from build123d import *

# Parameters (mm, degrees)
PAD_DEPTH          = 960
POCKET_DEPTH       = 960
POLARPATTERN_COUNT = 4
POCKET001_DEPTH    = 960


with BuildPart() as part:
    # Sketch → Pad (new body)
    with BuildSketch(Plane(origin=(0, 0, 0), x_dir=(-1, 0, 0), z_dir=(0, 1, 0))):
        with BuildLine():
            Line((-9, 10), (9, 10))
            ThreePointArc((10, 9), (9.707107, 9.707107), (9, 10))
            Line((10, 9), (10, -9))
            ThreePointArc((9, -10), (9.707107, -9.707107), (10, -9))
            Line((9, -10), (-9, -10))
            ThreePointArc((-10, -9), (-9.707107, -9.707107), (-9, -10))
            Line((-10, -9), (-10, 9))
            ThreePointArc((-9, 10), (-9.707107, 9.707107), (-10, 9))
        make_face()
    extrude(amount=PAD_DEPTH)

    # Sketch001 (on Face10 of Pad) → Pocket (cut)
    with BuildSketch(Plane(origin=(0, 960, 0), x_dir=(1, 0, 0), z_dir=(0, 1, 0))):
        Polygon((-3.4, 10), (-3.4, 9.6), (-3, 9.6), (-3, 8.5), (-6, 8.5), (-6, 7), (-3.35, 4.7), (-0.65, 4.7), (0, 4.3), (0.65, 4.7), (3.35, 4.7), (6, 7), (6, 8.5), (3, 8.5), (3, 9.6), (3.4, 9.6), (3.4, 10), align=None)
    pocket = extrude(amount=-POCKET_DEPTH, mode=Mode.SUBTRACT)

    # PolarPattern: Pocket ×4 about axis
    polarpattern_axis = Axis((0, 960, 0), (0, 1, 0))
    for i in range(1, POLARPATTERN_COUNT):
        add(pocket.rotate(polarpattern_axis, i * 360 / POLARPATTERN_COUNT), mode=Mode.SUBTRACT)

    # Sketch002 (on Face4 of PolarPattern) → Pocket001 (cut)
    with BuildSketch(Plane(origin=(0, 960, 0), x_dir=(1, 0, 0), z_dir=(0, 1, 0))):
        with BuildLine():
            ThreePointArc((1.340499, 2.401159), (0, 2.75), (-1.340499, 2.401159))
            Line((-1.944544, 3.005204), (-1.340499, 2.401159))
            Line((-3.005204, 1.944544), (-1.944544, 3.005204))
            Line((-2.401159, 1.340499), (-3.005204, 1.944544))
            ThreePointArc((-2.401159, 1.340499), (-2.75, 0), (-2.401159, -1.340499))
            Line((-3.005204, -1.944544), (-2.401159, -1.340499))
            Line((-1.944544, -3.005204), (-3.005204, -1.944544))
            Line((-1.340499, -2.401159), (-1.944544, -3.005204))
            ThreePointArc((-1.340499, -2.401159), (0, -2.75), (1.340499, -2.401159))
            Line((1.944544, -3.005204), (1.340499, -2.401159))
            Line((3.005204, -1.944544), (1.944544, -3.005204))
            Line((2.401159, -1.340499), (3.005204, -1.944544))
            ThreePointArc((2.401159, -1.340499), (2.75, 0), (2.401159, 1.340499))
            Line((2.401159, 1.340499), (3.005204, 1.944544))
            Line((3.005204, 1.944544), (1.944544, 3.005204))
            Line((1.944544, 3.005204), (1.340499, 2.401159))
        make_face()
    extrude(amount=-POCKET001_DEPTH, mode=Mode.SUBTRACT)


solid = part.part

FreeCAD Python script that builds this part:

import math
import FreeCAD as App
import Part
import Sketcher

V = App.Vector

doc = App.newDocument("Part")
params = doc.addObject("Spreadsheet::Sheet", "Params")
for row, (alias, value) in enumerate([
    ("sketch1_radius", "0.999999 mm"),
    ("sketch1_width", "18 mm"),
    ("pad1_length", "960 mm"),
    ("sketch2_width", "3 mm"),
    ("sketch2_width2", "0.4 mm"),
    ("sketch2_width3", "2.7 mm"),
    ("sketch2_width4", "6.8 mm"),
    ("sketch2_height", "1.1 mm"),
    ("pocket1_length", "960 mm"),
    ("sketch3_length", "1.5 mm"),
    ("pocket2_length", "960 mm"),
], start=1):
    params.set(f"A{row}", alias)
    params.set(f"B{row}", "=" + value)
    params.setAlias(f"B{row}", alias)

body = doc.addObject("PartDesign::Body", "Body")

# Sketch on XZ plane
sketch1 = body.newObject("Sketcher::SketchObject", "Sketch")
sketch1.AttachmentSupport = (doc.getObject("XZ_Plane"), [""])
sketch1.MapMode = "FlatFace"
sketch1.addGeometry([
    Part.LineSegment(V(-9, 10, 0), V(9, 10, 0)),  # 0
    Part.ArcOfCircle(Part.Circle(V(9, 9, 0), V(0, 0, 1), 1), math.radians(0), math.radians(90)),  # 1
    Part.LineSegment(V(10, 9, 0), V(10, -9, 0)),  # 2
    Part.ArcOfCircle(Part.Circle(V(9, -9, 0), V(0, 0, 1), 1), math.radians(-90), math.radians(0)),  # 3
    Part.LineSegment(V(9, -10, 0), V(-9, -10, 0)),  # 4
    Part.ArcOfCircle(Part.Circle(V(-9, -9, 0), V(0, 0, 1), 1), math.radians(180), math.radians(270)),  # 5
    Part.LineSegment(V(-10, -9, 0), V(-10, 9, 0)),  # 6
    Part.ArcOfCircle(Part.Circle(V(-9, 9, 0), V(0, 0, 1), 1), math.radians(90), math.radians(180)),  # 7
], False)
sketch1.addConstraint([
    Sketcher.Constraint("Tangent", 0, 2, 1, 2),
    Sketcher.Constraint("Tangent", 1, 1, 2, 1),
    Sketcher.Constraint("Tangent", 2, 2, 3, 2),
    Sketcher.Constraint("Tangent", 3, 1, 4, 1),
    Sketcher.Constraint("Tangent", 4, 2, 5, 2),
    Sketcher.Constraint("Tangent", 5, 1, 6, 1),
    Sketcher.Constraint("Tangent", 6, 2, 7, 2),
    Sketcher.Constraint("Tangent", 7, 1, 0, 1),
    Sketcher.Constraint("Horizontal", 0),
    Sketcher.Constraint("Vertical", 2),
    Sketcher.Constraint("Horizontal", 4),
    Sketcher.Constraint("Vertical", 6),
    Sketcher.Constraint("Equal", 1, 3),
    Sketcher.Constraint("Equal", 3, 5),
    Sketcher.Constraint("Equal", 5, 7),
    Sketcher.Constraint("Symmetric", 1, 3, 5, 3, -1, 1),
    Sketcher.Constraint("Equal", 4, 2),
    Sketcher.Constraint("Radius", 1, 0.999999),
    Sketcher.Constraint("DistanceX", 0, 1, 0, 2, 18.0),
])
sketch1.setExpression("Constraints[17]", "Params.sketch1_radius")
sketch1.setExpression("Constraints[18]", "Params.sketch1_width")
pad1 = body.newObject("PartDesign::Pad", "Pad")
pad1.Profile = sketch1
pad1.setExpression("Length", "Params.pad1_length")
pad1.Reversed = True

# Sketch on XZ plane
sketch2 = body.newObject("Sketcher::SketchObject", "Sketch001")
sketch2.AttachmentSupport = (doc.getObject("XZ_Plane"), [""])
sketch2.MapMode = "FlatFace"
sketch2.AttachmentOffset = App.Placement(V(0, 0, -960), App.Rotation())
sketch2.addGeometry([
    Part.LineSegment(V(-3.4, -10, 0), V(-3.4, -9.6, 0)),  # 0
    Part.LineSegment(V(-3.4, -9.6, 0), V(-3, -9.6, 0)),  # 1
    Part.LineSegment(V(-3, -9.6, 0), V(-3, -8.5, 0)),  # 2
    Part.LineSegment(V(-3, -8.5, 0), V(-6, -8.5, 0)),  # 3
    Part.LineSegment(V(-6, -8.5, 0), V(-6, -7, 0)),  # 4
    Part.LineSegment(V(-6, -7, 0), V(-3.35, -4.7, 0)),  # 5
    Part.LineSegment(V(-3.35, -4.7, 0), V(-0.65, -4.7, 0)),  # 6
    Part.LineSegment(V(-0.65, -4.7, 0), V(0, -4.3, 0)),  # 7
    Part.LineSegment(V(0, -4.3, 0), V(0.65, -4.7, 0)),  # 8
    Part.LineSegment(V(0.65, -4.7, 0), V(3.35, -4.7, 0)),  # 9
    Part.LineSegment(V(3.35, -4.7, 0), V(6, -7, 0)),  # 10
    Part.LineSegment(V(6, -7, 0), V(6, -8.5, 0)),  # 11
    Part.LineSegment(V(6, -8.5, 0), V(3, -8.5, 0)),  # 12
    Part.LineSegment(V(3, -8.5, 0), V(3, -9.6, 0)),  # 13
    Part.LineSegment(V(3, -9.6, 0), V(3.4, -9.6, 0)),  # 14
    Part.LineSegment(V(3.4, -9.6, 0), V(3.4, -10, 0)),  # 15
    Part.LineSegment(V(3.4, -10, 0), V(-3.4, -10, 0)),  # 16
], False)
sketch2.addConstraint([
    Sketcher.Constraint("Coincident", 0, 2, 1, 1),
    Sketcher.Constraint("Coincident", 1, 2, 2, 1),
    Sketcher.Constraint("Coincident", 2, 2, 3, 1),
    Sketcher.Constraint("Coincident", 3, 2, 4, 1),
    Sketcher.Constraint("Coincident", 4, 2, 5, 1),
    Sketcher.Constraint("Coincident", 5, 2, 6, 1),
    Sketcher.Constraint("Coincident", 6, 2, 7, 1),
    Sketcher.Constraint("Coincident", 7, 2, 8, 1),
    Sketcher.Constraint("Coincident", 8, 2, 9, 1),
    Sketcher.Constraint("Coincident", 9, 2, 10, 1),
    Sketcher.Constraint("Coincident", 10, 2, 11, 1),
    Sketcher.Constraint("Coincident", 11, 2, 12, 1),
    Sketcher.Constraint("Coincident", 12, 2, 13, 1),
    Sketcher.Constraint("Coincident", 13, 2, 14, 1),
    Sketcher.Constraint("Coincident", 14, 2, 15, 1),
    Sketcher.Constraint("Coincident", 15, 2, 16, 1),
    Sketcher.Constraint("Coincident", 16, 2, 0, 1),
    Sketcher.Constraint("Vertical", 0),
    Sketcher.Constraint("Horizontal", 1),
    Sketcher.Constraint("Vertical", 2),
    Sketcher.Constraint("Horizontal", 3),
    Sketcher.Constraint("Vertical", 4),
    Sketcher.Constraint("Horizontal", 6),
    Sketcher.Constraint("Horizontal", 9),
    Sketcher.Constraint("Vertical", 11),
    Sketcher.Constraint("Horizontal", 12),
    Sketcher.Constraint("Vertical", 13),
    Sketcher.Constraint("Horizontal", 14),
    Sketcher.Constraint("Vertical", 15),
    Sketcher.Constraint("Horizontal", 16),
    Sketcher.Constraint("Symmetric", 6, 2, 8, 2, -2),
    Sketcher.Constraint("Symmetric", 4, 2, 10, 2, -2),
    Sketcher.Constraint("Symmetric", 2, 2, 12, 2, -2),
    Sketcher.Constraint("Symmetric", 0, 2, 14, 2, -2),
    Sketcher.Constraint("PointOnObject", 7, 2, -2),
    Sketcher.Constraint("Equal", 6, 9),
    Sketcher.Constraint("Equal", 14, 0),
    Sketcher.Constraint("DistanceX", 3, 2, 3, 1, 3.0),
    Sketcher.Constraint("DistanceX", 1, 1, 1, 2, 0.4),
    Sketcher.Constraint("DistanceX", 6, 1, 6, 2, 2.7),
    Sketcher.Constraint("DistanceX", 16, 2, 16, 1, 6.8),
    Sketcher.Constraint("DistanceY", 2, 1, 2, 2, 1.1),
    Sketcher.Constraint("DistanceY", 4, 1, 4, 2, 1.5),
    Sketcher.Constraint("DistanceY", 4, 2, -1, 1, 7.0),
    Sketcher.Constraint("DistanceX", 5, 2, 8, 2, 4.0),
    Sketcher.Constraint("DistanceY", 5, 2, -1, 1, 4.7),
    Sketcher.Constraint("DistanceY", 7, 2, -1, 1, 4.3),
])
sketch2.setExpression("Constraints[37]", "Params.sketch2_width")
sketch2.setExpression("Constraints[38]", "Params.sketch2_width2")
sketch2.setExpression("Constraints[39]", "Params.sketch2_width3")
sketch2.setExpression("Constraints[40]", "Params.sketch2_width4")
sketch2.setExpression("Constraints[41]", "Params.sketch2_height")
pocket1 = body.newObject("PartDesign::Pocket", "Pocket")
pocket1.Profile = sketch2
pocket1.setExpression("Length", "Params.pocket1_length")
pocket1.Reversed = True
doc.recompute()

polarpattern = body.newObject("PartDesign::PolarPattern", "PolarPattern")
polarpattern.Originals = [pocket1]
polarpattern.Axis = (doc.getObject("Y_Axis"), [""])
polarpattern.Angle = 360
polarpattern.Occurrences = 4
body.Tip = polarpattern

# Sketch on XZ plane
sketch3 = body.newObject("Sketcher::SketchObject", "Sketch002")
sketch3.AttachmentSupport = (doc.getObject("XZ_Plane"), [""])
sketch3.MapMode = "FlatFace"
sketch3.AttachmentOffset = App.Placement(V(0, 0, -960), App.Rotation())
sketch3.addGeometry([
    Part.ArcOfCircle(Part.Circle(V(0, 0, 0), V(0, 0, 1), 2.8), math.radians(-119), math.radians(-61)),  # 0
    Part.LineSegment(V(-1.3, -2.4, 0), V(-1.9, -3, 0)),  # 1
    Part.LineSegment(V(-1.9, -3, 0), V(-3, -1.9, 0)),  # 2
    Part.LineSegment(V(-3, -1.9, 0), V(-2.4, -1.3, 0)),  # 3
    Part.ArcOfCircle(Part.Circle(V(0, 0, 0), V(0, 0, 1), 2.8), math.radians(151), math.radians(209)),  # 4
    Part.LineSegment(V(-2.4, 1.3, 0), V(-3, 1.9, 0)),  # 5
    Part.LineSegment(V(-3, 1.9, 0), V(-1.9, 3, 0)),  # 6
    Part.LineSegment(V(-1.9, 3, 0), V(-1.3, 2.4, 0)),  # 7
    Part.ArcOfCircle(Part.Circle(V(0, 0, 0), V(0, 0, 1), 2.8), math.radians(61), math.radians(119)),  # 8
    Part.LineSegment(V(1.3, 2.4, 0), V(1.9, 3, 0)),  # 9
    Part.LineSegment(V(1.9, 3, 0), V(3, 1.9, 0)),  # 10
    Part.LineSegment(V(3, 1.9, 0), V(2.4, 1.3, 0)),  # 11
    Part.ArcOfCircle(Part.Circle(V(0, 0, 0), V(0, 0, 1), 2.8), math.radians(-29), math.radians(29)),  # 12
    Part.LineSegment(V(2.4, -1.3, 0), V(3, -1.9, 0)),  # 13
    Part.LineSegment(V(3, -1.9, 0), V(1.9, -3, 0)),  # 14
    Part.LineSegment(V(1.9, -3, 0), V(1.3, -2.4, 0)),  # 15
], False)
sketch3.addConstraint([
    Sketcher.Constraint("Coincident", 0, 1, 1, 1),
    Sketcher.Constraint("Coincident", 1, 2, 2, 1),
    Sketcher.Constraint("Coincident", 2, 2, 3, 1),
    Sketcher.Constraint("Coincident", 3, 2, 4, 2),
    Sketcher.Constraint("Coincident", 4, 1, 5, 1),
    Sketcher.Constraint("Coincident", 5, 2, 6, 1),
    Sketcher.Constraint("Coincident", 6, 2, 7, 1),
    Sketcher.Constraint("Coincident", 7, 2, 8, 2),
    Sketcher.Constraint("Coincident", 8, 1, 9, 1),
    Sketcher.Constraint("Coincident", 9, 2, 10, 1),
    Sketcher.Constraint("Coincident", 10, 2, 11, 1),
    Sketcher.Constraint("Coincident", 11, 2, 12, 2),
    Sketcher.Constraint("Coincident", 12, 1, 13, 1),
    Sketcher.Constraint("Coincident", 13, 2, 14, 1),
    Sketcher.Constraint("Coincident", 14, 2, 15, 1),
    Sketcher.Constraint("Coincident", 15, 2, 0, 2),
    Sketcher.Constraint("Coincident", 0, 3, -1, 1),
    Sketcher.Constraint("Coincident", 4, 3, -1, 1),
    Sketcher.Constraint("Coincident", 8, 3, -1, 1),
    Sketcher.Constraint("Coincident", 12, 3, -1, 1),
    Sketcher.Constraint("Equal", 0, 4),
    Sketcher.Constraint("Equal", 4, 8),
    Sketcher.Constraint("Equal", 8, 12),
    Sketcher.Constraint("Symmetric", 1, 2, 9, 2, -1, 1),
    Sketcher.Constraint("Symmetric", 2, 2, 10, 2, -1, 1),
    Sketcher.Constraint("Symmetric", 5, 2, 13, 2, -1, 1),
    Sketcher.Constraint("Symmetric", 6, 2, 14, 2, -1, 1),
    Sketcher.Constraint("Symmetric", 6, 2, 9, 2, -2),
    Sketcher.Constraint("Symmetric", 5, 2, 10, 2, -2),
    Sketcher.Constraint("Perpendicular", 1, 2),
    Sketcher.Constraint("Perpendicular", 2, 3),
    Sketcher.Constraint("Perpendicular", 3, 5),
    Sketcher.Constraint("Perpendicular", 5, 6),
    Sketcher.Constraint("Perpendicular", 6, 7),
    Sketcher.Constraint("Perpendicular", 7, 9),
    Sketcher.Constraint("Perpendicular", 10, 11),
    Sketcher.Constraint("Perpendicular", 11, 13),
    Sketcher.Constraint("Perpendicular", 14, 15),
    Sketcher.Constraint("Equal", 1, 3),
    Sketcher.Constraint("Distance", 2, 1.5),
    Sketcher.Constraint("Radius", 0, 2.750003),
    Sketcher.Constraint("DistanceY", 1, 2, 8, 3, 3.005201),
])
sketch3.setExpression("Constraints[39]", "Params.sketch3_length")
pocket2 = body.newObject("PartDesign::Pocket", "Pocket001")
pocket2.Profile = sketch3
pocket2.setExpression("Length", "Params.pocket2_length")
pocket2.Reversed = True

doc.recompute()
